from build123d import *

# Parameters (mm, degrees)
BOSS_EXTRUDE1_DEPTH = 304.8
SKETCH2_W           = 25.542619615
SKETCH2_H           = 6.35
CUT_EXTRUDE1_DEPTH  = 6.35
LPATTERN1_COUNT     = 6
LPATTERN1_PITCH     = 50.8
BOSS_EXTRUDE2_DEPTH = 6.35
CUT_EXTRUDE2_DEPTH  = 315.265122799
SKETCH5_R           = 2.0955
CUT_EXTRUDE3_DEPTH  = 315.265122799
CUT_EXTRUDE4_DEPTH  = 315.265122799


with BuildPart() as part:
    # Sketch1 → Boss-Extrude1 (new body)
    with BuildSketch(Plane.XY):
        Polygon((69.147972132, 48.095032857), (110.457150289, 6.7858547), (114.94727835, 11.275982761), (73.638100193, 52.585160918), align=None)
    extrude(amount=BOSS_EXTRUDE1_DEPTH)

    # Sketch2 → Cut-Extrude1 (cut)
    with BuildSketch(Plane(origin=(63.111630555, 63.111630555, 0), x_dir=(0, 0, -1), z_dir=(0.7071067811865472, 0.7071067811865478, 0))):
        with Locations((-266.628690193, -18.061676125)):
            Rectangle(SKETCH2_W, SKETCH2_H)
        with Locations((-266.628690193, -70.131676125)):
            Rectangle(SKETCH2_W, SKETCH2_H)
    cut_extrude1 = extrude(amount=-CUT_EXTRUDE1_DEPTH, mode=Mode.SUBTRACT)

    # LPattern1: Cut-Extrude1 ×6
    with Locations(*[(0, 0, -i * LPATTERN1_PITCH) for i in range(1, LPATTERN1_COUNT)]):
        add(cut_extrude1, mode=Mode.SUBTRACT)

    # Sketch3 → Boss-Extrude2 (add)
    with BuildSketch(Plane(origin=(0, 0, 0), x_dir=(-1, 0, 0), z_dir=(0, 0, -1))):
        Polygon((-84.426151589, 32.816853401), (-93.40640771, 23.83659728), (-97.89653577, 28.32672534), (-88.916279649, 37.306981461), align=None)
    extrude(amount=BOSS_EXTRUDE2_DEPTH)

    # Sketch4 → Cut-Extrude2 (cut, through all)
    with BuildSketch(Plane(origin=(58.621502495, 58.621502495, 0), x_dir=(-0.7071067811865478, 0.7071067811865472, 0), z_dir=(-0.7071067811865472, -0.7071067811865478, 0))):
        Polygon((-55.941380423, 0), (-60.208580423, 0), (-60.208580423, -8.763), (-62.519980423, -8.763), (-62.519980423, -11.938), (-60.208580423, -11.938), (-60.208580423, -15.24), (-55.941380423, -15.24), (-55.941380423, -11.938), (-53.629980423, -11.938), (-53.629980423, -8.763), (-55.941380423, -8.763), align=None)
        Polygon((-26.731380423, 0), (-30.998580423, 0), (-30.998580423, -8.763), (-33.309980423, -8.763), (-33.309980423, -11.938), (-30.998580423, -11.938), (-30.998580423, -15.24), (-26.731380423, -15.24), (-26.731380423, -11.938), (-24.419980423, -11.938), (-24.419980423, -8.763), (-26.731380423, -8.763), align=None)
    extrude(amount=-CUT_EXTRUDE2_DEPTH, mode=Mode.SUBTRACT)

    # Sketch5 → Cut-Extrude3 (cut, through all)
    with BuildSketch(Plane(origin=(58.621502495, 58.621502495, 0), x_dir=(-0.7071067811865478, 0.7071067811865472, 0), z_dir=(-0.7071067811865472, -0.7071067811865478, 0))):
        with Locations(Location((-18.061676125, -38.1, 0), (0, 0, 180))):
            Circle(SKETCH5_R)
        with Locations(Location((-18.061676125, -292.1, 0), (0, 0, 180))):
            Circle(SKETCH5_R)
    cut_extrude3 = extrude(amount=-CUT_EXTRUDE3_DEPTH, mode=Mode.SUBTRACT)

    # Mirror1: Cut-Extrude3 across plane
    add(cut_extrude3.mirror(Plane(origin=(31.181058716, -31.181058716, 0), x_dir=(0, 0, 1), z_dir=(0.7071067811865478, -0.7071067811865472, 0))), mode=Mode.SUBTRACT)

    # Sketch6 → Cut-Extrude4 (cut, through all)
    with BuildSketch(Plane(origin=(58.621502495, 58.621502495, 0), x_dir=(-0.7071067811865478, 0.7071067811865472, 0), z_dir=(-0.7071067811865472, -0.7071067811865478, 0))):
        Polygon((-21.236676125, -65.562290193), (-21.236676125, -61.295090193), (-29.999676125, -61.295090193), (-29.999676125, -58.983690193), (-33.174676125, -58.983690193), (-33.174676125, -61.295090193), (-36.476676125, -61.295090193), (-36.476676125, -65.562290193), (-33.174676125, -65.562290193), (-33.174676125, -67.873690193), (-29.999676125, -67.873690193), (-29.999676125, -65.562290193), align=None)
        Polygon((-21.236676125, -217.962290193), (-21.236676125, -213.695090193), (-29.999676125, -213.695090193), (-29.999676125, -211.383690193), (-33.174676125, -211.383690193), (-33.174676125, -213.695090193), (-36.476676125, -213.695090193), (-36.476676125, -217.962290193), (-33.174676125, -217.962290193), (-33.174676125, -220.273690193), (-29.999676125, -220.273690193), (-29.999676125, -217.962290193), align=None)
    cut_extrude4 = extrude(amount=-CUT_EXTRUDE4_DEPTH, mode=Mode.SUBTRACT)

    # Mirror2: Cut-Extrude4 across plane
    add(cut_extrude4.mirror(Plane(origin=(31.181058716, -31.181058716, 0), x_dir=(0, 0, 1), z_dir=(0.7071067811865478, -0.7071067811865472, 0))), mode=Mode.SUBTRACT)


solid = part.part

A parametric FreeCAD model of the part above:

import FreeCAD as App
import Part
import Sketcher
from FreeCAD import Vector
Q = App.Units.Quantity

doc = App.newDocument("Part")
body = doc.addObject("PartDesign::Body", "Body")

sketch1 = body.newObject("Sketcher::SketchObject", "Sketch")
sketch1.AttachmentSupport = (doc.getObject("XY_Plane"), [""])
sketch1.MapMode = "FlatFace"
sketch1.addGeometry(Part.LineSegment(Vector(69.147972, 48.095033, 0), Vector(110.45715, 6.785855, 0)), False)
sketch1.addGeometry(Part.LineSegment(Vector(110.45715, 6.785855, 0), Vector(114.947278, 11.275983, 0)), False)
sketch1.addGeometry(Part.LineSegment(Vector(114.947278, 11.275983, 0), Vector(73.6381, 52.585161, 0)), False)
sketch1.addGeometry(Part.LineSegment(Vector(73.6381, 52.585161, 0), Vector(69.147972, 48.095033, 0)), False)
sketch1.addConstraint(Sketcher.Constraint("Coincident", 0, 2, 1, 1))
sketch1.addConstraint(Sketcher.Constraint("Coincident", 1, 2, 2, 1))
sketch1.addConstraint(Sketcher.Constraint("Coincident", 2, 2, 3, 1))
sketch1.addConstraint(Sketcher.Constraint("Coincident", 3, 2, 0, 1))
sketch1.addConstraint(Sketcher.Constraint("Perpendicular", 0, 1))
sketch1.addConstraint(Sketcher.Constraint("Perpendicular", 1, 2))
sketch1.addConstraint(Sketcher.Constraint("Perpendicular", 2, 3))
sketch1.addConstraint(Sketcher.Constraint("Angle", 0, Q("-45 deg")))
sketch1.addConstraint(Sketcher.Constraint("Distance", 0, Q("2.3 in")))
sketch1.addConstraint(Sketcher.Constraint("Distance", 1, Q("0.25 in")))
sketch1.addConstraint(Sketcher.Constraint("DistanceX", -1, 1, 2, 2, 73.6381))
sketch1.addConstraint(Sketcher.Constraint("DistanceY", -1, 1, 2, 2, 52.585161))
pad1 = body.newObject("PartDesign::Pad", "Pad")
pad1.Profile = sketch1
pad1.Length = Q("12 in")

sketch2 = body.newObject("Sketcher::SketchObject", "Sketch001")
sketch2.Placement = App.Placement(Vector(63.111631, 63.111631, 0), App.Rotation(Vector(0, 0, -1), Vector(-0.707106781, 0.707106781, 0), Vector(0.707106781, 0.707106781, 0), "ZXY"))
sketch2.addGeometry(Part.LineSegment(Vector(-279.4, -14.886676, 0), Vector(-279.4, -21.236676, 0)), False)
sketch2.addGeometry(Part.LineSegment(Vector(-279.4, -21.236676, 0), Vector(-253.85738, -21.236676, 0)), False)
sketch2.addGeometry(Part.LineSegment(Vector(-253.85738, -21.236676, 0), Vector(-253.85738, -14.886676, 0)), False)
sketch2.addGeometry(Part.LineSegment(Vector(-253.85738, -14.886676, 0), Vector(-279.4, -14.886676, 0)), False)
sketch2.addGeometry(Part.LineSegment(Vector(-279.4, -66.956676, 0), Vector(-279.4, -73.306676, 0)), False)
sketch2.addGeometry(Part.LineSegment(Vector(-279.4, -73.306676, 0), Vector(-253.85738, -73.306676, 0)), False)
sketch2.addGeometry(Part.LineSegment(Vector(-253.85738, -73.306676, 0), Vector(-253.85738, -66.956676, 0)), False)
sketch2.addGeometry(Part.LineSegment(Vector(-253.85738, -66.956676, 0), Vector(-279.4, -66.956676, 0)), False)
sketch2.addConstraint(Sketcher.Constraint("Coincident", 0, 2, 1, 1))
sketch2.addConstraint(Sketcher.Constraint("Coincident", 1, 2, 2, 1))
sketch2.addConstraint(Sketcher.Constraint("Coincident", 2, 2, 3, 1))
sketch2.addConstraint(Sketcher.Constraint("Coincident", 3, 2, 0, 1))
sketch2.addConstraint(Sketcher.Constraint("Coincident", 4, 2, 5, 1))
sketch2.addConstraint(Sketcher.Constraint("Coincident", 5, 2, 6, 1))
sketch2.addConstraint(Sketcher.Constraint("Coincident", 6, 2, 7, 1))
sketch2.addConstraint(Sketcher.Constraint("Coincident", 7, 2, 4, 1))
sketch2.addConstraint(Sketcher.Constraint("Vertical", 0))
sketch2.addConstraint(Sketcher.Constraint("Horizontal", 1))
sketch2.addConstraint(Sketcher.Constraint("Vertical", 2))
sketch2.addConstraint(Sketcher.Constraint("Horizontal", 3))
sketch2.addConstraint(Sketcher.Constraint("Vertical", 4))
sketch2.addConstraint(Sketcher.Constraint("Horizontal", 5))
sketch2.addConstraint(Sketcher.Constraint("Vertical", 6))
sketch2.addConstraint(Sketcher.Constraint("Horizontal", 7))
sketch2.addConstraint(Sketcher.Constraint("Vertical", 3, 2, 4, 2))
sketch2.addConstraint(Sketcher.Constraint("Vertical", 2, 2, 5, 2))
sketch2.addConstraint(Sketcher.Constraint("Equal", 2, 4))
sketch2.addConstraint(Sketcher.Constraint("DistanceX", 0, 2, -1, 1, Q("11 in")))
sketch2.addConstraint(Sketcher.Constraint("DistanceY", 0, 2, 0, 1, Q("0.25 in")))
sketch2.addConstraint(Sketcher.Constraint("DistanceY", 4, 2, 3, 2, Q("2.3 in")))
sketch2.addConstraint(Sketcher.Constraint("DistanceX", 1, 1, 1, 2, 25.54262))
sketch2.addConstraint(Sketcher.Constraint("DistanceY", 0, 2, -1, 1, 21.236676))
pocket1 = body.newObject("PartDesign::Pocket", "Pocket")
pocket1.Profile = sketch2
pocket1.Length = Q("0.25 in")
doc.recompute()

linearpattern = body.newObject("PartDesign::LinearPattern", "LinearPattern")
linearpattern.Originals = [pocket1]
linearpattern.Direction = (doc.getObject("Z_Axis"), [""])
linearpattern.Mode = "offset"
linearpattern.Offset = Q("2 in")
linearpattern.Occurrences = 6
linearpattern.Reversed = True
body.Tip = linearpattern

sketch3 = body.newObject("Sketcher::SketchObject", "Sketch002")
sketch3.AttachmentSupport = (doc.getObject("XY_Plane"), [""])
sketch3.MapMode = "FlatFace"
sketch3.addGeometry(Part.LineSegment(Vector(93.406408, 23.836597, 0), Vector(84.426152, 32.816853, 0)), False)
sketch3.addGeometry(Part.LineSegment(Vector(84.426152, 32.816853, 0), Vector(88.91628, 37.306981, 0)), False)
sketch3.addGeometry(Part.LineSegment(Vector(88.91628, 37.306981, 0), Vector(97.896536, 28.326725, 0)), False)
sketch3.addGeometry(Part.LineSegment(Vector(97.896536, 28.326725, 0), Vector(93.406408, 23.836597, 0)), False)
sketch3.addConstraint(Sketcher.Constraint("Coincident", 0, 2, 1, 1))
sketch3.addConstraint(Sketcher.Constraint("Coincident", 1, 2, 2, 1))
sketch3.addConstraint(Sketcher.Constraint("Coincident", 2, 2, 3, 1))
sketch3.addConstraint(Sketcher.Constraint("Coincident", 3, 2, 0, 1))
sketch3.addConstraint(Sketcher.Constraint("Perpendicular", 0, 1))
sketch3.addConstraint(Sketcher.Constraint("Perpendicular", 1, 2))
sketch3.addConstraint(Sketcher.Constraint("Perpendicular", 2, 3))
sketch3.addConstraint(Sketcher.Constraint("Angle", 0, Q("135 deg")))
sketch3.addConstraint(Sketcher.Constraint("Distance", 0, Q("0.5 in")))
sketch3.addConstraint(Sketcher.Constraint("Distance", 1, Q("0.25 in")))
sketch3.addConstraint(Sketcher.Constraint("DistanceX", -1, 1, 0, 2, 84.426152))
sketch3.addConstraint(Sketcher.Constraint("DistanceY", -1, 1, 1, 2, 37.306981))
pad2 = body.newObject("PartDesign::Pad", "Pad001")
pad2.Profile = sketch3
pad2.Length = Q("0.25 in")
pad2.Reversed = True

sketch4 = body.newObject("Sketcher::SketchObject", "Sketch003")
sketch4.Placement = App.Placement(Vector(58.621502, 58.621502, 0), App.Rotation(Vector(-0.707106781, 0.707106781, 0), Vector(0, 0, -0.999999999), Vector(-0.707106781, -0.707106781, 0), "ZXY"))
sketch4.addGeometry(Part.LineSegment(Vector(-55.94138, 0, 0), Vector(-60.20858, 0, 0)), False)
sketch4.addGeometry(Part.LineSegment(Vector(-60.20858, 0, 0), Vector(-60.20858, -8.763, 0)), False)
sketch4.addGeometry(Part.LineSegment(Vector(-60.20858, -8.763, 0), Vector(-62.51998, -8.763, 0)), False)
sketch4.addGeometry(Part.LineSegment(Vector(-62.51998, -8.763, 0), Vector(-62.51998, -11.938, 0)), False)
sketch4.addGeometry(Part.LineSegment(Vector(-62.51998, -11.938, 0), Vector(-60.20858, -11.938, 0)), False)
sketch4.addGeometry(Part.LineSegment(Vector(-60.20858, -11.938, 0), Vector(-60.20858, -15.24, 0)), False)
sketch4.addGeometry(Part.LineSegment(Vector(-60.20858, -15.24, 0), Vector(-55.94138, -15.24, 0)), False)
sketch4.addGeometry(Part.LineSegment(Vector(-55.94138, -15.24, 0), Vector(-55.94138, -11.938, 0)), False)
sketch4.addGeometry(Part.LineSegment(Vector(-55.94138, -11.938, 0), Vector(-53.62998, -11.938, 0)), False)
sketch4.addGeometry(Part.LineSegment(Vector(-53.62998, -11.938, 0), Vector(-53.62998, -8.763, 0)), False)
sketch4.addGeometry(Part.LineSegment(Vector(-53.62998, -8.763, 0), Vector(-55.94138, -8.763, 0)), False)
sketch4.addGeometry(Part.LineSegment(Vector(-55.94138, -8.763, 0), Vector(-55.94138, 0, 0)), False)
sketch4.addGeometry(Part.LineSegment(Vector(-26.73138, 0, 0), Vector(-30.99858, 0, 0)), False)
sketch4.addGeometry(Part.LineSegment(Vector(-30.99858, 0, 0), Vector(-30.99858, -8.763, 0)), False)
sketch4.addGeometry(Part.LineSegment(Vector(-30.99858, -8.763, 0), Vector(-33.30998, -8.763, 0)), False)
sketch4.addGeometry(Part.LineSegment(Vector(-33.30998, -8.763, 0), Vector(-33.30998, -11.938, 0)), False)
sketch4.addGeometry(Part.LineSegment(Vector(-33.30998, -11.938, 0), Vector(-30.99858, -11.938, 0)), False)
sketch4.addGeometry(Part.LineSegment(Vector(-30.99858, -11.938, 0), Vector(-30.99858, -15.24, 0)), False)
sketch4.addGeometry(Part.LineSegment(Vector(-30.99858, -15.24, 0), Vector(-26.73138, -15.24, 0)), False)
sketch4.addGeometry(Part.LineSegment(Vector(-26.73138, -15.24, 0), Vector(-26.73138, -11.938, 0)), False)
sketch4.addGeometry(Part.LineSegment(Vector(-26.73138, -11.938, 0), Vector(-24.41998, -11.938, 0)), False)
sketch4.addGeometry(Part.LineSegment(Vector(-24.41998, -11.938, 0), Vector(-24.41998, -8.763, 0)), False)
sketch4.addGeometry(Part.LineSegment(Vector(-24.41998, -8.763, 0), Vector(-26.73138, -8.763, 0)), False)
sketch4.addGeometry(Part.LineSegment(Vector(-26.73138, -8.763, 0), Vector(-26.73138, 0, 0)), False)
sketch4.addConstraint(Sketcher.Constraint("Coincident", 0, 2, 1, 1))
sketch4.addConstraint(Sketcher.Constraint("Coincident", 1, 2, 2, 1))
sketch4.addConstraint(Sketcher.Constraint("Coincident", 2, 2, 3, 1))
sketch4.addConstraint(Sketcher.Constraint("Coincident", 3, 2, 4, 1))
sketch4.addConstraint(Sketcher.Constraint("Coincident", 4, 2, 5, 1))
sketch4.addConstraint(Sketcher.Constraint("Coincident", 5, 2, 6, 1))
sketch4.addConstraint(Sketcher.Constraint("Coincident", 6, 2, 7, 1))
sketch4.addConstraint(Sketcher.Constraint("Coincident", 7, 2, 8, 1))
sketch4.addConstraint(Sketcher.Constraint("Coincident", 8, 2, 9, 1))
sketch4.addConstraint(Sketcher.Constraint("Coincident", 9, 2, 10, 1))
sketch4.addConstraint(Sketcher.Constraint("Coincident", 10, 2, 11, 1))
sketch4.addConstraint(Sketcher.Constraint("Coincident", 11, 2, 0, 1))
sketch4.addConstraint(Sketcher.Constraint("Coincident", 12, 2, 13, 1))
sketch4.addConstraint(Sketcher.Constraint("Coincident", 13, 2, 14, 1))
sketch4.addConstraint(Sketcher.Constraint("Coincident", 14, 2, 15, 1))
sketch4.addConstraint(Sketcher.Constraint("Coincident", 15, 2, 16, 1))
sketch4.addConstraint(Sketcher.Constraint("Coincident", 16, 2, 17, 1))
sketch4.addConstraint(Sketcher.Constraint("Coincident", 17, 2, 18, 1))
sketch4.addConstraint(Sketcher.Constraint("Coincident", 18, 2, 19, 1))
sketch4.addConstraint(Sketcher.Constraint("Coincident", 19, 2, 20, 1))
sketch4.addConstraint(Sketcher.Constraint("Coincident", 20, 2, 21, 1))
sketch4.addConstraint(Sketcher.Constraint("Coincident", 21, 2, 22, 1))
sketch4.addConstraint(Sketcher.Constraint("Coincident", 22, 2, 23, 1))
sketch4.addConstraint(Sketcher.Constraint("Coincident", 23, 2, 12, 1))
sketch4.addConstraint(Sketcher.Constraint("Horizontal", 0))
sketch4.addConstraint(Sketcher.Constraint("Vertical", 1))
sketch4.addConstraint(Sketcher.Constraint("Horizontal", 2))
sketch4.addConstraint(Sketcher.Constraint("Vertical", 3))
sketch4.addConstraint(Sketcher.Constraint("Horizontal", 4))
sketch4.addConstraint(Sketcher.Constraint("Vertical", 5))
sketch4.addConstraint(Sketcher.Constraint("Horizontal", 6))
sketch4.addConstraint(Sketcher.Constraint("Vertical", 7))
sketch4.addConstraint(Sketcher.Constraint("Horizontal", 8))
sketch4.addConstraint(Sketcher.Constraint("Vertical", 9))
sketch4.addConstraint(Sketcher.Constraint("Horizontal", 10))
sketch4.addConstraint(Sketcher.Constraint("Vertical", 11))
sketch4.addConstraint(Sketcher.Constraint("Horizontal", 12))
sketch4.addConstraint(Sketcher.Constraint("Vertical", 13))
sketch4.addConstraint(Sketcher.Constraint("Horizontal", 14))
sketch4.addConstraint(Sketcher.Constraint("Vertical", 15))
sketch4.addConstraint(Sketcher.Constraint("Horizontal", 16))
sketch4.addConstraint(Sketcher.Constraint("Vertical", 17))
sketch4.addConstraint(Sketcher.Constraint("Horizontal", 18))
sketch4.addConstraint(Sketcher.Constraint("Vertical", 19))
sketch4.addConstraint(Sketcher.Constraint("Horizontal", 20))
sketch4.addConstraint(Sketcher.Constraint("Vertical", 21))
sketch4.addConstraint(Sketcher.Constraint("Horizontal", 22))
sketch4.addConstraint(Sketcher.Constraint("Vertical", 23))
sketch4.addConstraint(Sketcher.Constraint("PointOnObject", 0, 2, -1))
sketch4.addConstraint(Sketcher.Constraint("PointOnObject", 12, 2, -1))
sketch4.addConstraint(Sketcher.Constraint("Horizontal", 4, 2, 7, 2))
sketch4.addConstraint(Sketcher.Constraint("Horizontal", 2, 2, 9, 2))
sketch4.addConstraint(Sketcher.Constraint("Horizontal", 10, 2, 13, 2))
sketch4.addConstraint(Sketcher.Constraint("Horizontal", 8, 2, 15, 2))
sketch4.addConstraint(Sketcher.Constraint("Horizontal", 6, 2, 17, 2))
sketch4.addConstraint(Sketcher.Constraint("Horizontal", 16, 2, 19, 2))
sketch4.addConstraint(Sketcher.Constraint("Horizontal", 14, 2, 21, 2))
sketch4.addConstraint(Sketcher.Constraint("Vertical", 1, 2, 4, 2))
sketch4.addConstraint(Sketcher.Constraint("Vertical", 7, 2, 10, 2))
sketch4.addConstraint(Sketcher.Constraint("Vertical", 13, 2, 16, 2))
sketch4.addConstraint(Sketcher.Constraint("Vertical", 19, 2, 22, 2))
sketch4.addConstraint(Sketcher.Constraint("Equal", 4, 8))
sketch4.addConstraint(Sketcher.Constraint("Equal", 6, 12))
sketch4.addConstraint(Sketcher.Constraint("Equal", 10, 14))
sketch4.addConstraint(Sketcher.Constraint("Equal", 16, 20))
sketch4.addConstraint(Sketcher.Constraint("DistanceY", 5, 2, 5, 1, Q("0.13 in")))
sketch4.addConstraint(Sketcher.Constraint("DistanceY", 5, 2, -1, 1, Q("0.6 in")))
sketch4.addConstraint(Sketcher.Constraint("DistanceX", 9, 2, 14, 2, Q("0.8 in")))
sketch4.addConstraint(Sketcher.Constraint("DistanceX", 0, 2, 0, 1, Q("0.168 in")))
sketch4.addConstraint(Sketcher.Constraint("DistanceX", 2, 2, 2, 1, Q("0.091 in")))
sketch4.addConstraint(Sketcher.Constraint("DistanceY", 1, 2, 1, 1, Q("0.345 in")))
sketch4.addConstraint(Sketcher.Constraint("DistanceX", 0, 2, -1, 1, 60.20858))
pocket2 = body.newObject("PartDesign::Pocket", "Pocket001")
pocket2.Profile = sketch4
pocket2.Type = "ThroughAll"

sketch5 = body.newObject("Sketcher::SketchObject", "Sketch004")
sketch5.Placement = App.Placement(Vector(58.621502, 58.621502, 0), App.Rotation(Vector(-0.707106781, 0.707106781, 0), Vector(0, 0, -0.999999999), Vector(-0.707106781, -0.707106781, 0), "ZXY"))
sketch5.addGeometry(Part.Circle(Vector(-18.061676, -38.1, 0), Vector(0, 0, 1), 2.0955), False)
sketch5.addGeometry(Part.Circle(Vector(-18.061676, -292.1, 0), Vector(0, 0, 1), 2.0955), False)
sketch5.addConstraint(Sketcher.Constraint("Equal", 0, 1))
sketch5.addConstraint(Sketcher.Constraint("Vertical", 0, 3, 1, 3))
sketch5.addConstraint(Sketcher.Constraint("Diameter", 0, Q("0.165 in")))
sketch5.addConstraint(Sketcher.Constraint("DistanceY", 1, 3, 0, 3, Q("10 in")))
sketch5.addConstraint(Sketcher.Constraint("DistanceY", 0, 3, -1, 1, Q("1.5 in")))
sketch5.addConstraint(Sketcher.Constraint("DistanceX", 0, 3, -1, 1, 18.061676))
pocket3 = body.newObject("PartDesign::Pocket", "Pocket002")
pocket3.Profile = sketch5
pocket3.Type = "ThroughAll"
doc.recompute()

datumplane = body.newObject("PartDesign::Plane", "DatumPlane")
datumplane.Placement = App.Placement(Vector(31.181059, -31.181059, 0), App.Rotation(Vector(-0.707106781, -0.707106781, 0), Vector(0, 0, -1), Vector(0.707106781, -0.707106781, 0), "ZXY"))
mirrored = body.newObject("PartDesign::Mirrored", "Mirrored")
mirrored.Originals = [pocket3]
mirrored.MirrorPlane = (datumplane, [""])
body.Tip = mirrored

sketch6 = body.newObject("Sketcher::SketchObject", "Sketch005")
sketch6.Placement = App.Placement(Vector(58.621502, 58.621502, 0), App.Rotation(Vector(-0.707106781, 0.707106781, 0), Vector(0, 0, -0.999999999), Vector(-0.707106781, -0.707106781, 0), "ZXY"))
sketch6.addGeometry(Part.LineSegment(Vector(-21.236676, -65.56229, 0), Vector(-21.236676, -61.29509, 0)), False)
sketch6.addGeometry(Part.LineSegment(Vector(-21.236676, -61.29509, 0), Vector(-29.999676, -61.29509, 0)), False)
sketch6.addGeometry(Part.LineSegment(Vector(-29.999676, -61.29509, 0), Vector(-29.999676, -58.98369, 0)), False)
sketch6.addGeometry(Part.LineSegment(Vector(-29.999676, -58.98369, 0), Vector(-33.174676, -58.98369, 0)), False)
sketch6.addGeometry(Part.LineSegment(Vector(-33.174676, -58.98369, 0), Vector(-33.174676, -61.29509, 0)), False)
sketch6.addGeometry(Part.LineSegment(Vector(-33.174676, -61.29509, 0), Vector(-36.476676, -61.29509, 0)), False)
sketch6.addGeometry(Part.LineSegment(Vector(-36.476676, -61.29509, 0), Vector(-36.476676, -65.56229, 0)), False)
sketch6.addGeometry(Part.LineSegment(Vector(-36.476676, -65.56229, 0), Vector(-33.174676, -65.56229, 0)), False)
sketch6.addGeometry(Part.LineSegment(Vector(-33.174676, -65.56229, 0), Vector(-33.174676, -67.87369, 0)), False)
sketch6.addGeometry(Part.LineSegment(Vector(-33.174676, -67.87369, 0), Vector(-29.999676, -67.87369, 0)), False)
sketch6.addGeometry(Part.LineSegment(Vector(-29.999676, -67.87369, 0), Vector(-29.999676, -65.56229, 0)), False)
sketch6.addGeometry(Part.LineSegment(Vector(-29.999676, -65.56229, 0), Vector(-21.236676, -65.56229, 0)), False)
sketch6.addGeometry(Part.LineSegment(Vector(-21.236676, -217.96229, 0), Vector(-21.236676, -213.69509, 0)), False)
sketch6.addGeometry(Part.LineSegment(Vector(-21.236676, -213.69509, 0), Vector(-29.999676, -213.69509, 0)), False)
sketch6.addGeometry(Part.LineSegment(Vector(-29.999676, -213.69509, 0), Vector(-29.999676, -211.38369, 0)), False)
sketch6.addGeometry(Part.LineSegment(Vector(-29.999676, -211.38369, 0), Vector(-33.174676, -211.38369, 0)), False)
sketch6.addGeometry(Part.LineSegment(Vector(-33.174676, -211.38369, 0), Vector(-33.174676, -213.69509, 0)), False)
sketch6.addGeometry(Part.LineSegment(Vector(-33.174676, -213.69509, 0), Vector(-36.476676, -213.69509, 0)), False)
sketch6.addGeometry(Part.LineSegment(Vector(-36.476676, -213.69509, 0), Vector(-36.476676, -217.96229, 0)), False)
sketch6.addGeometry(Part.LineSegment(Vector(-36.476676, -217.96229, 0), Vector(-33.174676, -217.96229, 0)), False)
sketch6.addGeometry(Part.LineSegment(Vector(-33.174676, -217.96229, 0), Vector(-33.174676, -220.27369, 0)), False)
sketch6.addGeometry(Part.LineSegment(Vector(-33.174676, -220.27369, 0), Vector(-29.999676, -220.27369, 0)), False)
sketch6.addGeometry(Part.LineSegment(Vector(-29.999676, -220.27369, 0), Vector(-29.999676, -217.96229, 0)), False)
sketch6.addGeometry(Part.LineSegment(Vector(-29.999676, -217.96229, 0), Vector(-21.236676, -217.96229, 0)), False)
sketch6.addConstraint(Sketcher.Constraint("Coincident", 0, 2, 1, 1))
sketch6.addConstraint(Sketcher.Constraint("Coincident", 1, 2, 2, 1))
sketch6.addConstraint(Sketcher.Constraint("Coincident", 2, 2, 3, 1))
sketch6.addConstraint(Sketcher.Constraint("Coincident", 3, 2, 4, 1))
sketch6.addConstraint(Sketcher.Constraint("Coincident", 4, 2, 5, 1))
sketch6.addConstraint(Sketcher.Constraint("Coincident", 5, 2, 6, 1))
sketch6.addConstraint(Sketcher.Constraint("Coincident", 6, 2, 7, 1))
sketch6.addConstraint(Sketcher.Constraint("Coincident", 7, 2, 8, 1))
sketch6.addConstraint(Sketcher.Constraint("Coincident", 8, 2, 9, 1))
sketch6.addConstraint(Sketcher.Constraint("Coincident", 9, 2, 10, 1))
sketch6.addConstraint(Sketcher.Constraint("Coincident", 10, 2, 11, 1))
sketch6.addConstraint(Sketcher.Constraint("Coincident", 11, 2, 0, 1))
sketch6.addConstraint(Sketcher.Constraint("Coincident", 12, 2, 13, 1))
sketch6.addConstraint(Sketcher.Constraint("Coincident", 13, 2, 14, 1))
sketch6.addConstraint(Sketcher.Constraint("Coincident", 14, 2, 15, 1))
sketch6.addConstraint(Sketcher.Constraint("Coincident", 15, 2, 16, 1))
sketch6.addConstraint(Sketcher.Constraint("Coincident", 16, 2, 17, 1))
sketch6.addConstraint(Sketcher.Constraint("Coincident", 17, 2, 18, 1))
sketch6.addConstraint(Sketcher.Constraint("Coincident", 18, 2, 19, 1))
sketch6.addConstraint(Sketcher.Constraint("Coincident", 19, 2, 20, 1))
sketch6.addConstraint(Sketcher.Constraint("Coincident", 20, 2, 21, 1))
sketch6.addConstraint(Sketcher.Constraint("Coincident", 21, 2, 22, 1))
sketch6.addConstraint(Sketcher.Constraint("Coincident", 22, 2, 23, 1))
sketch6.addConstraint(Sketcher.Constraint("Coincident", 23, 2, 12, 1))
sketch6.addConstraint(Sketcher.Constraint("Vertical", 0))
sketch6.addConstraint(Sketcher.Constraint("Horizontal", 1))
sketch6.addConstraint(Sketcher.Constraint("Vertical", 2))
sketch6.addConstraint(Sketcher.Constraint("Horizontal", 3))
sketch6.addConstraint(Sketcher.Constraint("Vertical", 4))
sketch6.addConstraint(Sketcher.Constraint("Horizontal", 5))
sketch6.addConstraint(Sketcher.Constraint("Vertical", 6))
sketch6.addConstraint(Sketcher.Constraint("Horizontal", 7))
sketch6.addConstraint(Sketcher.Constraint("Vertical", 8))
sketch6.addConstraint(Sketcher.Constraint("Horizontal", 9))
sketch6.addConstraint(Sketcher.Constraint("Vertical", 10))
sketch6.addConstraint(Sketcher.Constraint("Horizontal", 11))
sketch6.addConstraint(Sketcher.Constraint("Vertical", 12))
sketch6.addConstraint(Sketcher.Constraint("Horizontal", 13))
sketch6.addConstraint(Sketcher.Constraint("Vertical", 14))
sketch6.addConstraint(Sketcher.Constraint("Horizontal", 15))
sketch6.addConstraint(Sketcher.Constraint("Vertical", 16))
sketch6.addConstraint(Sketcher.Constraint("Horizontal", 17))
sketch6.addConstraint(Sketcher.Constraint("Vertical", 18))
sketch6.addConstraint(Sketcher.Constraint("Horizontal", 19))
sketch6.addConstraint(Sketcher.Constraint("Vertical", 20))
sketch6.addConstraint(Sketcher.Constraint("Horizontal", 21))
sketch6.addConstraint(Sketcher.Constraint("Vertical", 22))
sketch6.addConstraint(Sketcher.Constraint("Horizontal", 23))
sketch6.addConstraint(Sketcher.Constraint("Horizontal", 1, 2, 4, 2))
sketch6.addConstraint(Sketcher.Constraint("Horizontal", 7, 2, 10, 2))
sketch6.addConstraint(Sketcher.Constraint("Horizontal", 13, 2, 16, 2))
sketch6.addConstraint(Sketcher.Constraint("Horizontal", 19, 2, 22, 2))
sketch6.addConstraint(Sketcher.Constraint("Vertical", 4, 2, 7, 2))
sketch6.addConstraint(Sketcher.Constraint("Vertical", 2, 2, 9, 2))
sketch6.addConstraint(Sketcher.Constraint("Vertical", 11, 2, 12, 2))
sketch6.addConstraint(Sketcher.Constraint("Vertical", 10, 2, 13, 2))
sketch6.addConstraint(Sketcher.Constraint("Vertical", 8, 2, 15, 2))
sketch6.addConstraint(Sketcher.Constraint("Vertical", 6, 2, 17, 2))
sketch6.addConstraint(Sketcher.Constraint("Vertical", 16, 2, 19, 2))
sketch6.addConstraint(Sketcher.Constraint("Vertical", 14, 2, 21, 2))
sketch6.addConstraint(Sketcher.Constraint("Equal", 4, 8))
sketch6.addConstraint(Sketcher.Constraint("Equal", 6, 12))
sketch6.addConstraint(Sketcher.Constraint("Equal", 10, 14))
sketch6.addConstraint(Sketcher.Constraint("Equal", 16, 20))
sketch6.addConstraint(Sketcher.Constraint("DistanceX", 5, 2, 5, 1, Q("0.13 in")))
sketch6.addConstraint(Sketcher.Constraint("DistanceX", 5, 2, 0, 2, Q("0.6 in")))
sketch6.addConstraint(Sketcher.Constraint("DistanceX", 1, 2, 1, 1, Q("0.345 in")))
sketch6.addConstraint(Sketcher.Constraint("DistanceY", 0, 1, 0, 2, Q("0.168 in")))
sketch6.addConstraint(Sketcher.Constraint("DistanceY", 2, 1, 2, 2, Q("0.091 in")))
sketch6.addConstraint(Sketcher.Constraint("DistanceY", 14, 2, 9, 2, Q("5.65 in")))
sketch6.addConstraint(Sketcher.Constraint("DistanceY", 0, 2, -1, 1, 61.29509))
sketch6.addConstraint(Sketcher.Constraint("DistanceX", 0, 2, -1, 1, 21.236676))
pocket4 = body.newObject("PartDesign::Pocket", "Pocket003")
pocket4.Profile = sketch6
pocket4.Type = "ThroughAll"
doc.recompute()

datumplane2 = body.newObject("PartDesign::Plane", "DatumPlane001")
datumplane2.Placement = App.Placement(Vector(31.181059, -31.181059, 0), App.Rotation(Vector(-0.707106781, -0.707106781, 0), Vector(0, 0, -1), Vector(0.707106781, -0.707106781, 0), "ZXY"))
mirrored2 = body.newObject("PartDesign::Mirrored", "Mirrored001")
mirrored2.Originals = [pocket4]
mirrored2.MirrorPlane = (datumplane2, [""])
body.Tip = mirrored2

doc.recompute()
